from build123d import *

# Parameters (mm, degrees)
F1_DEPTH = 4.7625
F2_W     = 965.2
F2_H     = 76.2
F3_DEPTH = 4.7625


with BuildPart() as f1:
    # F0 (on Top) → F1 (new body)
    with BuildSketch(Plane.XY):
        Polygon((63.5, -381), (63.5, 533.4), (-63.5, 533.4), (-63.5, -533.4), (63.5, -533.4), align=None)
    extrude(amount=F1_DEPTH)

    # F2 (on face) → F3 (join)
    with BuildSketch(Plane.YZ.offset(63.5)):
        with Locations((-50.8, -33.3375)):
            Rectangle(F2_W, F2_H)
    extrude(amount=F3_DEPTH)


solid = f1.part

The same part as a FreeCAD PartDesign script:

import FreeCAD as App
import Part
import Sketcher

V = App.Vector
Q = App.Units.Quantity

doc = App.newDocument("Part")
body = doc.addObject("PartDesign::Body", "Body")

sketch1 = body.newObject("Sketcher::SketchObject", "Sketch")
sketch1.AttachmentSupport = (doc.getObject("XY_Plane"), [""])
sketch1.MapMode = "FlatFace"
sketch1.addGeometry([
    Part.LineSegment(V(64, 533, 0), V(-64, 533, 0)),
    Part.LineSegment(V(-64, 533, 0), V(-64, -533, 0)),
    Part.LineSegment(V(-64, -533, 0), V(64, -533, 0)),
    Part.LineSegment(V(64, -533, 0), V(64, 533, 0)),
], False)
sketch1.addConstraint([
    Sketcher.Constraint("Coincident", 0, 2, 1, 1),
    Sketcher.Constraint("Coincident", 1, 2, 2, 1),
    Sketcher.Constraint("Coincident", 2, 2, 3, 1),
    Sketcher.Constraint("Coincident", 3, 2, 0, 1),
    Sketcher.Constraint("Horizontal", 0),
    Sketcher.Constraint("Vertical", 1),
    Sketcher.Constraint("Horizontal", 2),
    Sketcher.Constraint("Vertical", 3),
    Sketcher.Constraint("Symmetric", 0, 2, 2, 2, -1, 1),
    Sketcher.Constraint("DistanceX", 0, 2, 0, 1, Q("5 in")),
    Sketcher.Constraint("DistanceY", 1, 2, 1, 1, Q("42 in")),
])
pad1 = body.newObject("PartDesign::Pad", "Pad")
pad1.Profile = sketch1
pad1.Length = Q("0.1875 in")

sketch2 = body.newObject("Sketcher::SketchObject", "Sketch001")
sketch2.AttachmentSupport = (doc.getObject("YZ_Plane"), [""])
sketch2.MapMode = "FlatFace"
sketch2.AttachmentOffset = App.Placement(V(0, 0, 2.5 * 25.4), App.Rotation())
sketch2.addGeometry([
    Part.LineSegment(V(-533, 5, 0), V(-533, -71, 0)),
    Part.LineSegment(V(-533, -71, 0), V(432, -71, 0)),
    Part.LineSegment(V(432, -71, 0), V(432, 5, 0)),
    Part.LineSegment(V(432, 5, 0), V(-533, 5, 0)),
], False)
sketch2.addConstraint([
    Sketcher.Constraint("Coincident", 0, 2, 1, 1),
    Sketcher.Constraint("Coincident", 1, 2, 2, 1),
    Sketcher.Constraint("Coincident", 2, 2, 3, 1),
    Sketcher.Constraint("Coincident", 3, 2, 0, 1),
    Sketcher.Constraint("Vertical", 0),
    Sketcher.Constraint("Horizontal", 1),
    Sketcher.Constraint("Vertical", 2),
    Sketcher.Constraint("Horizontal", 3),
    Sketcher.Constraint("DistanceX", 1, 1, 1, 2, Q("38 in")),
    Sketcher.Constraint("DistanceY", 0, 2, 0, 1, Q("3 in")),
    Sketcher.Constraint("DistanceX", 0, 2, -1, 1, Q("21 in")),
    Sketcher.Constraint("DistanceY", 0, 2, -1, 1, Q("2.8125 in")),
])
pad2 = body.newObject("PartDesign::Pad", "Pad001")
pad2.Profile = sketch2
pad2.Length = Q("0.1875 in")

doc.recompute()
